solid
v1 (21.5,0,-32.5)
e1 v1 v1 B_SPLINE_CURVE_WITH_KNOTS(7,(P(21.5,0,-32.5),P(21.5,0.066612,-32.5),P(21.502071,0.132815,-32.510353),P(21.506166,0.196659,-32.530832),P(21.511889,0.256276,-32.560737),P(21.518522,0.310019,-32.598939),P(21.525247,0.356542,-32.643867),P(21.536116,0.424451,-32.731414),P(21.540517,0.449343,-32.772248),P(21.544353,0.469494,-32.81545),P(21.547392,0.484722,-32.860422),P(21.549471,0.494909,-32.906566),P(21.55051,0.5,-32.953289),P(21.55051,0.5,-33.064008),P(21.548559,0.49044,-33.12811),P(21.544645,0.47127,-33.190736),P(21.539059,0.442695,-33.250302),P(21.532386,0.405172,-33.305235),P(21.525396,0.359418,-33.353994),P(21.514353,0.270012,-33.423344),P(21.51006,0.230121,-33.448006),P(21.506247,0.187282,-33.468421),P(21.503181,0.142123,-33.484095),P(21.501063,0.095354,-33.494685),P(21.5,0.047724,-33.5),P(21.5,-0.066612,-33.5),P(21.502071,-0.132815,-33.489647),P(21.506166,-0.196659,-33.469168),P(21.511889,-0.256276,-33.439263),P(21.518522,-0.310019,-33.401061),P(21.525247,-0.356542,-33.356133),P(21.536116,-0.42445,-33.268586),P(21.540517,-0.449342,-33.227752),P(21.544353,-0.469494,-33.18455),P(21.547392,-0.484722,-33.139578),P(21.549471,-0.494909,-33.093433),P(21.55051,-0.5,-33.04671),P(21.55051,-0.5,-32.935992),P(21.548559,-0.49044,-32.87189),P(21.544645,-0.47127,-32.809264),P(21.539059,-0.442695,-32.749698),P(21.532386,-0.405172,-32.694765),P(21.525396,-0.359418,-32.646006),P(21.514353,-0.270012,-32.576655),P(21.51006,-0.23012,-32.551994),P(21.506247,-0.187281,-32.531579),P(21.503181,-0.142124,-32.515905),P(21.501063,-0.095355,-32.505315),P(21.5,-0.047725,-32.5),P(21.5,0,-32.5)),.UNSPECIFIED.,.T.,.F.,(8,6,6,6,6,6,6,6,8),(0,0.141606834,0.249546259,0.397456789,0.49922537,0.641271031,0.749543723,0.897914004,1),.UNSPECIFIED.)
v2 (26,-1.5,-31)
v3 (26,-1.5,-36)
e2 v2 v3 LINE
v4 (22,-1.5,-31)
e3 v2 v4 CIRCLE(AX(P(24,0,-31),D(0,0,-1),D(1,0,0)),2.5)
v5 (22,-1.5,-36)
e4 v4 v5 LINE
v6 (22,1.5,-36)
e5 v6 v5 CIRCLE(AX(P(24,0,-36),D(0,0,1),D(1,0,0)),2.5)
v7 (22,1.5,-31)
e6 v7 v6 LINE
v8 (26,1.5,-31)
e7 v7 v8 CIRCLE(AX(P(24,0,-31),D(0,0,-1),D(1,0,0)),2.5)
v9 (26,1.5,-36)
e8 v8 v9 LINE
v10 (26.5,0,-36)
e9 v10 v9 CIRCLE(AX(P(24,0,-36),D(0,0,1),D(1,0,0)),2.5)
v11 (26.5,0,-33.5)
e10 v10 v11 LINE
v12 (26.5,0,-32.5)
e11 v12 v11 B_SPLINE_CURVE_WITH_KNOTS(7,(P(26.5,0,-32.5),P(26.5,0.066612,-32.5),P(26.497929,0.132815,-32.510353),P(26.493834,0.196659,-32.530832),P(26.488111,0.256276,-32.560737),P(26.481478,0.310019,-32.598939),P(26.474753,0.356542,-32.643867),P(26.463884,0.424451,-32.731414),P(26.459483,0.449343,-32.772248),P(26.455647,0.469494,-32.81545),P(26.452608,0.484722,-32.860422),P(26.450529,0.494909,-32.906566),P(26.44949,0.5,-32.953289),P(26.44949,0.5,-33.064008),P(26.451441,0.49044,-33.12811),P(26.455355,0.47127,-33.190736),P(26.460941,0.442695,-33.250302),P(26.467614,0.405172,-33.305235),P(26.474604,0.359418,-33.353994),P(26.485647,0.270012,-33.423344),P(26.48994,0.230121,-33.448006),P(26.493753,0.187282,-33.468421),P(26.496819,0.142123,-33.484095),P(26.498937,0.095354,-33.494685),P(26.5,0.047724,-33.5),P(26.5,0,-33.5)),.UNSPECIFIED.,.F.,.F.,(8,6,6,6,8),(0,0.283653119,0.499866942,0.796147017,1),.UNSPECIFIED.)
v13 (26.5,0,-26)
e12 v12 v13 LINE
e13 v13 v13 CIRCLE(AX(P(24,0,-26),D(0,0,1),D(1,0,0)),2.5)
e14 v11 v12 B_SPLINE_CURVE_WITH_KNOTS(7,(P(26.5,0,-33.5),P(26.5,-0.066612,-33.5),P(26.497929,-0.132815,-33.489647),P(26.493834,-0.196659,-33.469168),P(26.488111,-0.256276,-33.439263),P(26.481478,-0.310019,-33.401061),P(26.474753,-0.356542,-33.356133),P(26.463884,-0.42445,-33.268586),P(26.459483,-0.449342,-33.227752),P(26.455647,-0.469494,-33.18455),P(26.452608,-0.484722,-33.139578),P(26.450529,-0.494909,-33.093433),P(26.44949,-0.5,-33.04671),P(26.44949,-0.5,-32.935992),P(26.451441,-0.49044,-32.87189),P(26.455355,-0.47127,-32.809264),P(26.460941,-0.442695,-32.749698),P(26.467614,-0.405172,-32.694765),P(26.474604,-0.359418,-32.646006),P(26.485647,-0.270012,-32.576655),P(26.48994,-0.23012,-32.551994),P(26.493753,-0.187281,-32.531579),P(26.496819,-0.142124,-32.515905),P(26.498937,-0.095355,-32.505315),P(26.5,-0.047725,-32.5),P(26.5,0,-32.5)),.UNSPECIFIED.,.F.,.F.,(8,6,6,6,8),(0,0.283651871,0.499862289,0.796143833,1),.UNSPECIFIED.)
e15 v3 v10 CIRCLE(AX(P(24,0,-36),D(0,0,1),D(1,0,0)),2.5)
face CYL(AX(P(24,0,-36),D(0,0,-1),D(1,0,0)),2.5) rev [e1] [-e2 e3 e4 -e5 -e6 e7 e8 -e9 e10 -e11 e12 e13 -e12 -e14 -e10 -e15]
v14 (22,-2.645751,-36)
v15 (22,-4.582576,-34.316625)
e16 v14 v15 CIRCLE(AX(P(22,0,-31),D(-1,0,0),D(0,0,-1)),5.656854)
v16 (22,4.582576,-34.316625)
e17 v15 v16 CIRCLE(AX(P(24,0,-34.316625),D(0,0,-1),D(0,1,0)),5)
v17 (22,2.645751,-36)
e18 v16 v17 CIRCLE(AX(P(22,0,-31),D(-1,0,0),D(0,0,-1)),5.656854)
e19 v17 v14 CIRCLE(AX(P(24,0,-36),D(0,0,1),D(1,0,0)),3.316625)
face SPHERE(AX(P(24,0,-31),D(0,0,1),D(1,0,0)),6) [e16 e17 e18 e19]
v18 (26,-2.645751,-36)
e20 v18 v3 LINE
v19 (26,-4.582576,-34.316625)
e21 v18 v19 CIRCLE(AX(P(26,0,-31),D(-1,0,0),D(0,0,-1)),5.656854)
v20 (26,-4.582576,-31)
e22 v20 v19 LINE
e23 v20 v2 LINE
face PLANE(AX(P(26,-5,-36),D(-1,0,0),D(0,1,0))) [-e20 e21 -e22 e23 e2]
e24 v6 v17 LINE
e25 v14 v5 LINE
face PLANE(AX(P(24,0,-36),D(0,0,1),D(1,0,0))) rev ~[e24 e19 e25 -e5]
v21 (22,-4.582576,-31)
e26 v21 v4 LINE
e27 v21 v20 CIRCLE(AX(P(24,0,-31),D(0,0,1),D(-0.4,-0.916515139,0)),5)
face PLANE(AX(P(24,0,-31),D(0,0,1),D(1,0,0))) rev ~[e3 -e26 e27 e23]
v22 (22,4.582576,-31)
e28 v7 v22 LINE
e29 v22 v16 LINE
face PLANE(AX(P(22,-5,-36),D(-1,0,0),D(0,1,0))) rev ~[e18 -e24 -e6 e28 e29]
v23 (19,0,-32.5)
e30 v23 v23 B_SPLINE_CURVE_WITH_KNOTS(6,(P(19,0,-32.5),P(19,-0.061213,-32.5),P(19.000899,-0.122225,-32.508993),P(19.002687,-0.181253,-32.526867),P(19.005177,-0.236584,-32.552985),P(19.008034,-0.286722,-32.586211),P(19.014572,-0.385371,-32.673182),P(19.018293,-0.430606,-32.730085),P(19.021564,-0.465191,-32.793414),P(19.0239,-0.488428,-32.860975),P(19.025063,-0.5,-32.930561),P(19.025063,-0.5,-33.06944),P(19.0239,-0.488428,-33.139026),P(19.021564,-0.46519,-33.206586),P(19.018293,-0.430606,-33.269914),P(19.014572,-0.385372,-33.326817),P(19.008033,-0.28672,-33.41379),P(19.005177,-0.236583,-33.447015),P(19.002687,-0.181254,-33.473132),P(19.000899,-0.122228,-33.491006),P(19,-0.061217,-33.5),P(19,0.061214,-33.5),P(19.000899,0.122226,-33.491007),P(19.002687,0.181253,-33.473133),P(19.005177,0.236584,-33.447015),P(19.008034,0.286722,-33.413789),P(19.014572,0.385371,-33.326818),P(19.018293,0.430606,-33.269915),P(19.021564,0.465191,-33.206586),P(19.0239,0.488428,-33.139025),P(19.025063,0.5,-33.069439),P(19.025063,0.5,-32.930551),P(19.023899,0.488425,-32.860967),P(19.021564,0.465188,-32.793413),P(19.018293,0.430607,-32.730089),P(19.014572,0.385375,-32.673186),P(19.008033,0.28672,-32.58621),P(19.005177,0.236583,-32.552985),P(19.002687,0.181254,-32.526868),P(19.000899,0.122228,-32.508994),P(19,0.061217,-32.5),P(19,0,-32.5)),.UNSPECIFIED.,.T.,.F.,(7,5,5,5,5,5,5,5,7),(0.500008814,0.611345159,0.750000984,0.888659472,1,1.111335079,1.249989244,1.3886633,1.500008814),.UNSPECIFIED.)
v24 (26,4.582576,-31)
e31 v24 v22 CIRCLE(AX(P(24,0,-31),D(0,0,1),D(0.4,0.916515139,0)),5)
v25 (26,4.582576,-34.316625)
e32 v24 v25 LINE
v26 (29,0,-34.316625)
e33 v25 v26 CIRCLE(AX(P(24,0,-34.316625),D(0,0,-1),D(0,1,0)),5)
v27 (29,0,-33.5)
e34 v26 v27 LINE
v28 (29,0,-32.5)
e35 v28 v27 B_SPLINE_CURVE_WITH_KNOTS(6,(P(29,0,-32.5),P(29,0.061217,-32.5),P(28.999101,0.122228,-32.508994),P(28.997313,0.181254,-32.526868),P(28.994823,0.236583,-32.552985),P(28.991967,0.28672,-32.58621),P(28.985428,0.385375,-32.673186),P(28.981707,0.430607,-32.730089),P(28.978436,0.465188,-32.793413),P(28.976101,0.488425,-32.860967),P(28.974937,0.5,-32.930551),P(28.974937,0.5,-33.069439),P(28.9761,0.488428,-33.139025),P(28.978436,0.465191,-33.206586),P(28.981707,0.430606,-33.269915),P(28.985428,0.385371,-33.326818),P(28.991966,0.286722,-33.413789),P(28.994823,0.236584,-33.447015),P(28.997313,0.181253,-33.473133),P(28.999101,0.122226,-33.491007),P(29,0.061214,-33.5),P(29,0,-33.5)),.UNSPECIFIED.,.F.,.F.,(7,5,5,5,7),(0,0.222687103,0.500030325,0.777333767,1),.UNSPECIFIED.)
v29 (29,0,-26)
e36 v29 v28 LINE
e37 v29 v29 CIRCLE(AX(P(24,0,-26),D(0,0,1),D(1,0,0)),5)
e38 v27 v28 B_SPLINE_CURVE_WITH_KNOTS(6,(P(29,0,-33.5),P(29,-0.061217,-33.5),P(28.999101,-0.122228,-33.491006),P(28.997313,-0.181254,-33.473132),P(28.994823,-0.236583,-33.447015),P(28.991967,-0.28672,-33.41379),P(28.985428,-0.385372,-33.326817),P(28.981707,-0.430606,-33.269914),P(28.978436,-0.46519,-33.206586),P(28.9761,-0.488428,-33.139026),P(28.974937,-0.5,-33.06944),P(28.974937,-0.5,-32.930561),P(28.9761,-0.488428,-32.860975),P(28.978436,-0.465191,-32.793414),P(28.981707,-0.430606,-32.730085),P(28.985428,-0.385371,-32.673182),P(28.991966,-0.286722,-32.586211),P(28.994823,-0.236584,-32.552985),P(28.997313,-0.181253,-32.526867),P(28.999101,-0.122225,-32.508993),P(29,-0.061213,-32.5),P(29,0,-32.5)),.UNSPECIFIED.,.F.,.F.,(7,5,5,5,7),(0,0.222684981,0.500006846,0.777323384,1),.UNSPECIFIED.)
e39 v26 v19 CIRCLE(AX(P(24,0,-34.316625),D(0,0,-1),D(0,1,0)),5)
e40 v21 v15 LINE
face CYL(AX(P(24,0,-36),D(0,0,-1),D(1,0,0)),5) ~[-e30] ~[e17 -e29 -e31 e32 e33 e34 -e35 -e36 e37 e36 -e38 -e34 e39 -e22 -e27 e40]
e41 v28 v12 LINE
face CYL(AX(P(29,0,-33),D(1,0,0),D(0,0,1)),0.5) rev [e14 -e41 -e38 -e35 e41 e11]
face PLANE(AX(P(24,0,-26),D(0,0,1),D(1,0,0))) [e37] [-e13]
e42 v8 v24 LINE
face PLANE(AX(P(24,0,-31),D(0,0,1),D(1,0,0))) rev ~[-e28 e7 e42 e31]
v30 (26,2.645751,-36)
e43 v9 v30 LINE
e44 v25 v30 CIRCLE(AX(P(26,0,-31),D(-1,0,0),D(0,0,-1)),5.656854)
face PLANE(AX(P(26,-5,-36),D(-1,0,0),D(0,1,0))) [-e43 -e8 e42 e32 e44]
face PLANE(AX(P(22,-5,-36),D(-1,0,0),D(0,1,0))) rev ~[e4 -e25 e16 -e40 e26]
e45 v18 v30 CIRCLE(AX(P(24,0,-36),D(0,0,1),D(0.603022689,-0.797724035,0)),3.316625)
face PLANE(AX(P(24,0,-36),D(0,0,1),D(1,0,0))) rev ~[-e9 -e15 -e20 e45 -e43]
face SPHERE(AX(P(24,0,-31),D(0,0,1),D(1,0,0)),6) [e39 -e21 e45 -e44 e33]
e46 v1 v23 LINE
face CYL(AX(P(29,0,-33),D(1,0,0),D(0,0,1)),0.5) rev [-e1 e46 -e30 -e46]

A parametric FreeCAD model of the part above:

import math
import FreeCAD as App
import Part
import Sketcher
from FreeCAD import Vector
Q = App.Units.Quantity

doc = App.newDocument("Part")
body = doc.addObject("PartDesign::Body", "Body")

# Sketch on XY plane
sketch1 = body.newObject("Sketcher::SketchObject", "Sketch")
sketch1.AttachmentSupport = (doc.getObject("XY_Plane"), [""])
sketch1.MapMode = "FlatFace"
sketch1.AttachmentOffset = App.Placement(Vector(0, 0, -6), App.Rotation())
sketch1.addGeometry(Part.Circle(Vector(18, 0, 0), Vector(0, 0, 1), 3), False)
sketch1.addConstraint(Sketcher.Constraint("PointOnObject", 0, 3, -1))
sketch1.addConstraint(Sketcher.Constraint("Diameter", 0, Q("6 mm")))
sketch1.addConstraint(Sketcher.Constraint("DistanceX", -1, 1, 0, 3, Q("18 mm")))
pad1 = body.newObject("PartDesign::Pad", "Pad")
pad1.Profile = sketch1
pad1.Length = 10
body2 = doc.addObject("PartDesign::Body", "Body001")

# Sketch on XY plane
sketch2 = body2.newObject("Sketcher::SketchObject", "Sketch001")
sketch2.AttachmentSupport = (doc.getObject("XY_Plane001"), [""])
sketch2.MapMode = "FlatFace"
sketch2.AttachmentOffset = App.Placement(Vector(0, 0, -4), App.Rotation())
sketch2.addGeometry(Part.Circle(Vector(18, 0, 0), Vector(0, 0, 1), 5), False)
sketch2.addConstraint(Sketcher.Constraint("PointOnObject", 0, 3, -1))
sketch2.addConstraint(Sketcher.Constraint("Diameter", 0, Q("10 mm")))
sketch2.addConstraint(Sketcher.Constraint("DistanceX", -1, 1, 0, 3, Q("18 mm")))
pad2 = body2.newObject("PartDesign::Pad", "Pad001")
pad2.Profile = sketch2
pad2.Length = 4
doc.recompute()

boolean = body2.newObject("PartDesign::Boolean", "Boolean")
boolean.Type = "Cut"
boolean.addObjects([body])
body3 = doc.addObject("PartDesign::Body", "Body002")
doc.recompute()

body2.Placement = App.Placement(Vector(-18, 0, 0), App.Rotation(Vector(0, 0, 1), 0))
boolean2 = body3.newObject("PartDesign::Boolean", "Boolean001")
boolean2.Type = "Fuse"
boolean2.addObjects([body2])
body4 = doc.addObject("PartDesign::Body", "Body003")

# Sketch on XZ plane
sketch3 = body4.newObject("Sketcher::SketchObject", "Sketch002")
sketch3.AttachmentSupport = (doc.getObject("XZ_Plane003"), [""])
sketch3.MapMode = "FlatFace"
sketch3.addGeometry(Part.ArcOfCircle(Part.Circle(Vector(0, -5, 0), Vector(0, 0, 1), 6), math.radians(-90), math.radians(90)), False)
sketch3.addGeometry(Part.LineSegment(Vector(0, 1, 0), Vector(0, -11, 0)), False)
sketch3.addConstraint(Sketcher.Constraint("Coincident", 0, 1, 1, 2))
sketch3.addConstraint(Sketcher.Constraint("Coincident", 1, 1, 0, 2))
sketch3.addConstraint(Sketcher.Constraint("Vertical", 1))
sketch3.addConstraint(Sketcher.Constraint("PointOnObject", 0, 3, -2))
sketch3.addConstraint(Sketcher.Constraint("PointOnObject", 0, 1, -2))
sketch3.addConstraint(Sketcher.Constraint("Radius", 0, Q("6 mm")))
sketch3.addConstraint(Sketcher.Constraint("DistanceY", 0, 3, -1, 1, Q("5 mm")))
revolution = body4.newObject("PartDesign::Revolution", "Revolution")
revolution.Profile = sketch3
revolution.ReferenceAxis = (sketch3, ["V_Axis"])
revolution.Angle = 360
body5 = doc.addObject("PartDesign::Body", "Body004")

# Sketch on YZ plane
sketch4 = body5.newObject("Sketcher::SketchObject", "Sketch003")
sketch4.AttachmentSupport = (doc.getObject("YZ_Plane004"), [""])
sketch4.MapMode = "FlatFace"
sketch4.AttachmentOffset = App.Placement(Vector(0, 0, 5), App.Rotation())
sketch4.addGeometry(Part.Circle(Vector(0, -7, 0), Vector(0, 0, 1), 0.5), False)
sketch4.addConstraint(Sketcher.Constraint("PointOnObject", 0, 3, -2))
sketch4.addConstraint(Sketcher.Constraint("Diameter", 0, Q("1 mm")))
sketch4.addConstraint(Sketcher.Constraint("DistanceY", 0, 3, -1, 1, Q("7 mm")))
pad3 = body5.newObject("PartDesign::Pad", "Pad002")
pad3.Profile = sketch4
pad3.Length = 10
pad3.Reversed = True
body6 = doc.addObject("PartDesign::Body", "Body005")

# Sketch on XY plane
sketch5 = body6.newObject("Sketcher::SketchObject", "Sketch004")
sketch5.AttachmentSupport = (doc.getObject("XY_Plane005"), [""])
sketch5.MapMode = "FlatFace"
sketch5.AttachmentOffset = App.Placement(Vector(0, 0, -10), App.Rotation())
sketch5.addGeometry(Part.Circle(Vector(0, 0, 0), Vector(0, 0, 1), 2.5), False)
sketch5.addConstraint(Sketcher.Constraint("Coincident", 0, 3, -1, 1))
sketch5.addConstraint(Sketcher.Constraint("Diameter", 0, Q("5 mm")))
pad4 = body6.newObject("PartDesign::Pad", "Pad003")
pad4.Profile = sketch5
pad4.Length = 10
body7 = doc.addObject("PartDesign::Body", "Body006")

# Sketch on XY plane
sketch6 = body7.newObject("Sketcher::SketchObject", "Sketch005")
sketch6.AttachmentSupport = (doc.getObject("XY_Plane006"), [""])
sketch6.MapMode = "FlatFace"
sketch6.AttachmentOffset = App.Placement(Vector(0, 0, -10), App.Rotation())
sketch6.addGeometry(Part.LineSegment(Vector(-2, 5, 0), Vector(-2, -5, 0)), False)
sketch6.addGeometry(Part.LineSegment(Vector(-2, -5, 0), Vector(2, -5, 0)), False)
sketch6.addGeometry(Part.LineSegment(Vector(2, -5, 0), Vector(2, 5, 0)), False)
sketch6.addGeometry(Part.LineSegment(Vector(2, 5, 0), Vector(-2, 5, 0)), False)
sketch6.addConstraint(Sketcher.Constraint("Coincident", 0, 2, 1, 1))
sketch6.addConstraint(Sketcher.Constraint("Coincident", 1, 2, 2, 1))
sketch6.addConstraint(Sketcher.Constraint("Coincident", 2, 2, 3, 1))
sketch6.addConstraint(Sketcher.Constraint("Coincident", 3, 2, 0, 1))
sketch6.addConstraint(Sketcher.Constraint("Vertical", 0))
sketch6.addConstraint(Sketcher.Constraint("Horizontal", 1))
sketch6.addConstraint(Sketcher.Constraint("Vertical", 2))
sketch6.addConstraint(Sketcher.Constraint("Horizontal", 3))
sketch6.addConstraint(Sketcher.Constraint("Symmetric", 0, 2, 2, 2, -1, 1))
sketch6.addConstraint(Sketcher.Constraint("DistanceX", 1, 1, 1, 2, Q("4 mm")))
sketch6.addConstraint(Sketcher.Constraint("DistanceY", 0, 2, 0, 1, Q("10 mm")))
pad5 = body7.newObject("PartDesign::Pad", "Pad004")
pad5.Profile = sketch6
pad5.Length = 5
body8 = doc.addObject("PartDesign::Body", "Body007")

# Sketch on XY plane
sketch7 = body8.newObject("Sketcher::SketchObject", "Sketch006")
sketch7.AttachmentSupport = (doc.getObject("XY_Plane007"), [""])
sketch7.MapMode = "FlatFace"
sketch7.AttachmentOffset = App.Placement(Vector(0, 0, -10), App.Rotation())
sketch7.addGeometry(Part.Circle(Vector(0, 0, 0), Vector(0, 0, 1), 5), False)
sketch7.addConstraint(Sketcher.Constraint("Coincident", 0, 3, -1, 1))
sketch7.addConstraint(Sketcher.Constraint("Diameter", 0, Q("10 mm")))
pad6 = body8.newObject("PartDesign::Pad", "Pad005")
pad6.Profile = sketch7
pad6.Length = 10
doc.recompute()

boolean3 = body8.newObject("PartDesign::Boolean", "Boolean002")
boolean3.Type = "Cut"
boolean3.addObjects([body7])
doc.recompute()

boolean4 = body8.newObject("PartDesign::Boolean", "Boolean003")
boolean4.Type = "Cut"
boolean4.addObjects([body6])
doc.recompute()

boolean5 = body8.newObject("PartDesign::Boolean", "Boolean004")
boolean5.Type = "Cut"
boolean5.addObjects([body5])
doc.recompute()

boolean6 = body8.newObject("PartDesign::Boolean", "Boolean005")
boolean6.Type = "Common"
boolean6.addObjects([body4])
doc.recompute()

boolean7 = body8.newObject("PartDesign::Boolean", "Boolean006")
boolean7.Type = "Fuse"
boolean7.addObjects([body3])
body9 = doc.addObject("PartDesign::Body", "Body008")
doc.recompute()

body8.Placement = App.Placement(Vector(24, 0, -26), App.Rotation(Vector(0, 0, 1), 0))
boolean8 = body9.newObject("PartDesign::Boolean", "Boolean007")
boolean8.Type = "Fuse"
boolean8.addObjects([body8])

doc.recompute()
